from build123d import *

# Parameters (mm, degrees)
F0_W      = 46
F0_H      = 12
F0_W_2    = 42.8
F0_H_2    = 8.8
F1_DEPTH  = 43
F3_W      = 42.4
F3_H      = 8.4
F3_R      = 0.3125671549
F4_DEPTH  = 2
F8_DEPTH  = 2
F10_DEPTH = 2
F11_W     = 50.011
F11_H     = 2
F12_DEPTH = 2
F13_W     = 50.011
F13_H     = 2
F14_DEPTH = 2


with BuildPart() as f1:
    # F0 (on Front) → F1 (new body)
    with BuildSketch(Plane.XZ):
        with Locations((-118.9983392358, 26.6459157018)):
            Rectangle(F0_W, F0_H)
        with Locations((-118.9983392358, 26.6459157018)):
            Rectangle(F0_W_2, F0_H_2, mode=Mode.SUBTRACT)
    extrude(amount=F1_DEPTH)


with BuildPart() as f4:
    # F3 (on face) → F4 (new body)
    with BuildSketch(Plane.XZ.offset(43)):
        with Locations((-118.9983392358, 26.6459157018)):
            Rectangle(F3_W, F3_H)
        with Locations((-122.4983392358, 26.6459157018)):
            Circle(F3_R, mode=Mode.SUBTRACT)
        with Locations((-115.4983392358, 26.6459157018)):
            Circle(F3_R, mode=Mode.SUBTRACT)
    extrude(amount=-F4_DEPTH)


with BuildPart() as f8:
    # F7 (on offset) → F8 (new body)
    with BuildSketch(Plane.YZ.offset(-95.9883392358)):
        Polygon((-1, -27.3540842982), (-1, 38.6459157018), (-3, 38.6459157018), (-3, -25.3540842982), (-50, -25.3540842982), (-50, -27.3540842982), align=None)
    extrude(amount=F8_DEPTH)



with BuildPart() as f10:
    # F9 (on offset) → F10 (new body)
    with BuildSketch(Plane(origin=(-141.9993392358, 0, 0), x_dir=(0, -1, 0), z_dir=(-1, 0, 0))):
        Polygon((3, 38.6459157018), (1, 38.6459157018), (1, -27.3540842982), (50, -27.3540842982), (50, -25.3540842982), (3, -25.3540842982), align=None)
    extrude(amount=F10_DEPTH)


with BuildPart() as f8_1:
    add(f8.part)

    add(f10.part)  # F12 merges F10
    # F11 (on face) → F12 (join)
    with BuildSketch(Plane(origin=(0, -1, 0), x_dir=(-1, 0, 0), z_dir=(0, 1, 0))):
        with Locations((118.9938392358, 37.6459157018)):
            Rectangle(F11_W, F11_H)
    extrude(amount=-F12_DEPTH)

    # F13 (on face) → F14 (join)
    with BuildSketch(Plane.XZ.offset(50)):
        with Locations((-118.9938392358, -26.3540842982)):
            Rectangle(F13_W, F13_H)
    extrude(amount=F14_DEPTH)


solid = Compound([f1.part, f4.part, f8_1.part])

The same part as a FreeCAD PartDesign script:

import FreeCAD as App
import Part
import Sketcher

doc = App.newDocument("Part")
body = doc.addObject("PartDesign::Body", "Body")

sketch1 = body.newObject("Sketcher::SketchObject", "Sketch")
sketch1.AttachmentSupport = (doc.getObject("XZ_Plane"), [""])
sketch1.MapMode = "FlatFace"
sketch1.addGeometry(Part.LineSegment(App.Vector(-142, 33, 0), App.Vector(-142, 21, 0)), False)
sketch1.addGeometry(Part.LineSegment(App.Vector(-142, 21, 0), App.Vector(-96, 21, 0)), False)
sketch1.addGeometry(Part.LineSegment(App.Vector(-96, 21, 0), App.Vector(-96, 33, 0)), False)
sketch1.addGeometry(Part.LineSegment(App.Vector(-96, 33, 0), App.Vector(-142, 33, 0)), False)
sketch1.addGeometry(Part.LineSegment(App.Vector(-98, 22, 0), App.Vector(-140, 22, 0)), False)
sketch1.addGeometry(Part.LineSegment(App.Vector(-140, 22, 0), App.Vector(-140, 31, 0)), False)
sketch1.addGeometry(Part.LineSegment(App.Vector(-140, 31, 0), App.Vector(-98, 31, 0)), False)
sketch1.addGeometry(Part.LineSegment(App.Vector(-98, 31, 0), App.Vector(-98, 22, 0)), False)
sketch1.addConstraint(Sketcher.Constraint("Coincident", 0, 2, 1, 1))
sketch1.addConstraint(Sketcher.Constraint("Coincident", 1, 2, 2, 1))
sketch1.addConstraint(Sketcher.Constraint("Coincident", 2, 2, 3, 1))
sketch1.addConstraint(Sketcher.Constraint("Coincident", 3, 2, 0, 1))
sketch1.addConstraint(Sketcher.Constraint("Coincident", 4, 2, 5, 1))
sketch1.addConstraint(Sketcher.Constraint("Coincident", 5, 2, 6, 1))
sketch1.addConstraint(Sketcher.Constraint("Coincident", 6, 2, 7, 1))
sketch1.addConstraint(Sketcher.Constraint("Coincident", 7, 2, 4, 1))
sketch1.addConstraint(Sketcher.Constraint("Vertical", 0))
sketch1.addConstraint(Sketcher.Constraint("Horizontal", 1))
sketch1.addConstraint(Sketcher.Constraint("Vertical", 2))
sketch1.addConstraint(Sketcher.Constraint("Horizontal", 3))
sketch1.addConstraint(Sketcher.Constraint("Horizontal", 4))
sketch1.addConstraint(Sketcher.Constraint("Vertical", 5))
sketch1.addConstraint(Sketcher.Constraint("Horizontal", 6))
sketch1.addConstraint(Sketcher.Constraint("Vertical", 7))
sketch1.addConstraint(Sketcher.Constraint("DistanceX", 1, 1, 1, 2, 46.0))
sketch1.addConstraint(Sketcher.Constraint("DistanceY", 0, 2, 0, 1, 12.0))
sketch1.addConstraint(Sketcher.Constraint("DistanceX", 4, 2, 4, 1, 42.8))
sketch1.addConstraint(Sketcher.Constraint("DistanceY", 5, 1, 5, 2, 8.8))
sketch1.addConstraint(Sketcher.Constraint("DistanceX", 0, 2, 4, 2, 1.6))
sketch1.addConstraint(Sketcher.Constraint("DistanceY", 0, 2, 4, 2, 1.6))
sketch1.addConstraint(Sketcher.Constraint("DistanceX", 0, 2, -1, 1, 141.998339))
sketch1.addConstraint(Sketcher.Constraint("DistanceY", -1, 1, 0, 2, 20.645916))
pad1 = body.newObject("PartDesign::Pad", "Pad")
pad1.Profile = sketch1
pad1.Length = 43
body2 = doc.addObject("PartDesign::Body", "Body001")

sketch2 = body2.newObject("Sketcher::SketchObject", "Sketch001")
sketch2.AttachmentSupport = (doc.getObject("XZ_Plane001"), [""])
sketch2.MapMode = "FlatFace"
sketch2.AttachmentOffset = App.Placement(App.Vector(0, 0, 43), App.Rotation())
sketch2.addGeometry(Part.LineSegment(App.Vector(-140.2, 30.85, 0), App.Vector(-140.2, 22.45, 0)), False)
sketch2.addGeometry(Part.LineSegment(App.Vector(-140.2, 22.45, 0), App.Vector(-97.8, 22.45, 0)), False)
sketch2.addGeometry(Part.LineSegment(App.Vector(-97.8, 22.45, 0), App.Vector(-97.8, 30.85, 0)), False)
sketch2.addGeometry(Part.LineSegment(App.Vector(-97.8, 30.85, 0), App.Vector(-140.2, 30.85, 0)), False)
sketch2.addGeometry(Part.Circle(App.Vector(-122.5, 26.65, 0), App.Vector(0, 0, 1), 0.31), False)
sketch2.addGeometry(Part.Circle(App.Vector(-115.5, 26.65, 0), App.Vector(0, 0, 1), 0.31), False)
sketch2.addConstraint(Sketcher.Constraint("Coincident", 0, 2, 1, 1))
sketch2.addConstraint(Sketcher.Constraint("Coincident", 1, 2, 2, 1))
sketch2.addConstraint(Sketcher.Constraint("Coincident", 2, 2, 3, 1))
sketch2.addConstraint(Sketcher.Constraint("Coincident", 3, 2, 0, 1))
sketch2.addConstraint(Sketcher.Constraint("Vertical", 0))
sketch2.addConstraint(Sketcher.Constraint("Horizontal", 1))
sketch2.addConstraint(Sketcher.Constraint("Vertical", 2))
sketch2.addConstraint(Sketcher.Constraint("Horizontal", 3))
sketch2.addConstraint(Sketcher.Constraint("Equal", 4, 5))
sketch2.addConstraint(Sketcher.Constraint("Horizontal", 4, 3, 5, 3))
sketch2.addConstraint(Sketcher.Constraint("DistanceX", 1, 1, 1, 2, 42.4))
sketch2.addConstraint(Sketcher.Constraint("DistanceY", 0, 2, 0, 1, 8.4))
sketch2.addConstraint(Sketcher.Constraint("DistanceX", 4, 3, 5, 3, 7.0))
sketch2.addConstraint(Sketcher.Constraint("DistanceX", 0, 2, 4, 3, 17.7))
sketch2.addConstraint(Sketcher.Constraint("DistanceY", 0, 2, 4, 3, 4.2))
sketch2.addConstraint(Sketcher.Constraint("Diameter", 4, 0.625134))
sketch2.addConstraint(Sketcher.Constraint("DistanceX", 4, 3, -1, 1, 122.498339))
sketch2.addConstraint(Sketcher.Constraint("DistanceY", -1, 1, 4, 3, 26.645916))
pad2 = body2.newObject("PartDesign::Pad", "Pad001")
pad2.Profile = sketch2
pad2.Length = 2
pad2.Reversed = True
body3 = doc.addObject("PartDesign::Body", "Body002")

sketch3 = body3.newObject("Sketcher::SketchObject", "Sketch002")
sketch3.AttachmentSupport = (doc.getObject("YZ_Plane002"), [""])
sketch3.MapMode = "FlatFace"
sketch3.AttachmentOffset = App.Placement(App.Vector(0, 0, -95.988339), App.Rotation())
sketch3.addGeometry(Part.LineSegment(App.Vector(-1, -27.4, 0), App.Vector(-1, 38.6, 0)), False)
sketch3.addGeometry(Part.LineSegment(App.Vector(-1, 38.6, 0), App.Vector(-3, 38.6, 0)), False)
sketch3.addGeometry(Part.LineSegment(App.Vector(-3, 38.6, 0), App.Vector(-3, -25.4, 0)), False)
sketch3.addGeometry(Part.LineSegment(App.Vector(-3, -25.4, 0), App.Vector(-50, -25.4, 0)), False)
sketch3.addGeometry(Part.LineSegment(App.Vector(-50, -25.4, 0), App.Vector(-50, -27.4, 0)), False)
sketch3.addGeometry(Part.LineSegment(App.Vector(-50, -27.4, 0), App.Vector(-1, -27.4, 0)), False)
sketch3.addConstraint(Sketcher.Constraint("Coincident", 0, 2, 1, 1))
sketch3.addConstraint(Sketcher.Constraint("Coincident", 1, 2, 2, 1))
sketch3.addConstraint(Sketcher.Constraint("Coincident", 2, 2, 3, 1))
sketch3.addConstraint(Sketcher.Constraint("Coincident", 3, 2, 4, 1))
sketch3.addConstraint(Sketcher.Constraint("Coincident", 4, 2, 5, 1))
sketch3.addConstraint(Sketcher.Constraint("Coincident", 5, 2, 0, 1))
sketch3.addConstraint(Sketcher.Constraint("Vertical", 0))
sketch3.addConstraint(Sketcher.Constraint("Horizontal", 1))
sketch3.addConstraint(Sketcher.Constraint("Vertical", 2))
sketch3.addConstraint(Sketcher.Constraint("Horizontal", 3))
sketch3.addConstraint(Sketcher.Constraint("Vertical", 4))
sketch3.addConstraint(Sketcher.Constraint("Horizontal", 5))
sketch3.addConstraint(Sketcher.Constraint("Equal", 1, 4))
sketch3.addConstraint(Sketcher.Constraint("DistanceX", 1, 2, 1, 1, 2.0))
sketch3.addConstraint(Sketcher.Constraint("DistanceX", 3, 2, 3, 1, 47.0))
sketch3.addConstraint(Sketcher.Constraint("DistanceY", 0, 1, 0, 2, 66.0))
sketch3.addConstraint(Sketcher.Constraint("DistanceX", 0, 2, -1, 1, 1.0))
sketch3.addConstraint(Sketcher.Constraint("DistanceY", -1, 1, 0, 2, 38.645916))
pad3 = body3.newObject("PartDesign::Pad", "Pad002")
pad3.Profile = sketch3
pad3.Length = 2
body4 = doc.addObject("PartDesign::Body", "Body003")

sketch4 = body4.newObject("Sketcher::SketchObject", "Sketch003")
sketch4.AttachmentSupport = (doc.getObject("YZ_Plane003"), [""])
sketch4.MapMode = "FlatFace"
sketch4.AttachmentOffset = App.Placement(App.Vector(0, 0, -141.999339), App.Rotation())
sketch4.addGeometry(Part.LineSegment(App.Vector(-3, 38.6, 0), App.Vector(-1, 38.6, 0)), False)
sketch4.addGeometry(Part.LineSegment(App.Vector(-1, 38.6, 0), App.Vector(-1, -27.4, 0)), False)
sketch4.addGeometry(Part.LineSegment(App.Vector(-1, -27.4, 0), App.Vector(-50, -27.4, 0)), False)
sketch4.addGeometry(Part.LineSegment(App.Vector(-50, -27.4, 0), App.Vector(-50, -25.4, 0)), False)
sketch4.addGeometry(Part.LineSegment(App.Vector(-50, -25.4, 0), App.Vector(-3, -25.4, 0)), False)
sketch4.addGeometry(Part.LineSegment(App.Vector(-3, -25.4, 0), App.Vector(-3, 38.6, 0)), False)
sketch4.addConstraint(Sketcher.Constraint("Coincident", 0, 2, 1, 1))
sketch4.addConstraint(Sketcher.Constraint("Coincident", 1, 2, 2, 1))
sketch4.addConstraint(Sketcher.Constraint("Coincident", 2, 2, 3, 1))
sketch4.addConstraint(Sketcher.Constraint("Coincident", 3, 2, 4, 1))
sketch4.addConstraint(Sketcher.Constraint("Coincident", 4, 2, 5, 1))
sketch4.addConstraint(Sketcher.Constraint("Coincident", 5, 2, 0, 1))
sketch4.addConstraint(Sketcher.Constraint("Horizontal", 0))
sketch4.addConstraint(Sketcher.Constraint("Vertical", 1))
sketch4.addConstraint(Sketcher.Constraint("Horizontal", 2))
sketch4.addConstraint(Sketcher.Constraint("Vertical", 3))
sketch4.addConstraint(Sketcher.Constraint("Horizontal", 4))
sketch4.addConstraint(Sketcher.Constraint("Vertical", 5))
sketch4.addConstraint(Sketcher.Constraint("Equal", 0, 3))
sketch4.addConstraint(Sketcher.Constraint("DistanceX", 0, 1, 0, 2, 2.0))
sketch4.addConstraint(Sketcher.Constraint("DistanceX", 2, 2, 2, 1, 49.0))
sketch4.addConstraint(Sketcher.Constraint("DistanceY", 1, 2, 1, 1, 66.0))
sketch4.addConstraint(Sketcher.Constraint("DistanceX", 0, 2, -1, 1, 1.0))
sketch4.addConstraint(Sketcher.Constraint("DistanceY", -1, 1, 0, 2, 38.645916))
pad4 = body4.newObject("PartDesign::Pad", "Pad003")
pad4.Profile = sketch4
pad4.Length = 2
pad4.Reversed = True
body3.AllowCompound = True
doc.recompute()

boolean = body3.newObject("PartDesign::Boolean", "Boolean")
boolean.Type = "Fuse"
boolean.addObjects([body4])

sketch5 = body3.newObject("Sketcher::SketchObject", "Sketch004")
sketch5.AttachmentSupport = (doc.getObject("XZ_Plane002"), [""])
sketch5.MapMode = "FlatFace"
sketch5.AttachmentOffset = App.Placement(App.Vector(0, 0, 1), App.Rotation())
sketch5.addGeometry(Part.LineSegment(App.Vector(-94, 38.6, 0), App.Vector(-94, 36.6, 0)), False)
sketch5.addGeometry(Part.LineSegment(App.Vector(-94, 36.6, 0), App.Vector(-144, 36.6, 0)), False)
sketch5.addGeometry(Part.LineSegment(App.Vector(-144, 36.6, 0), App.Vector(-144, 38.6, 0)), False)
sketch5.addGeometry(Part.LineSegment(App.Vector(-144, 38.6, 0), App.Vector(-94, 38.6, 0)), False)
sketch5.addConstraint(Sketcher.Constraint("Coincident", 0, 2, 1, 1))
sketch5.addConstraint(Sketcher.Constraint("Coincident", 1, 2, 2, 1))
sketch5.addConstraint(Sketcher.Constraint("Coincident", 2, 2, 3, 1))
sketch5.addConstraint(Sketcher.Constraint("Coincident", 3, 2, 0, 1))
sketch5.addConstraint(Sketcher.Constraint("Vertical", 0))
sketch5.addConstraint(Sketcher.Constraint("Horizontal", 1))
sketch5.addConstraint(Sketcher.Constraint("Vertical", 2))
sketch5.addConstraint(Sketcher.Constraint("Horizontal", 3))
sketch5.addConstraint(Sketcher.Constraint("DistanceY", 0, 2, 0, 1, 2.0))
sketch5.addConstraint(Sketcher.Constraint("DistanceX", 1, 2, 1, 1, 50.011))
sketch5.addConstraint(Sketcher.Constraint("DistanceX", 0, 2, -1, 1, 93.988339))
sketch5.addConstraint(Sketcher.Constraint("DistanceY", -1, 1, 0, 2, 36.645916))
pad5 = body3.newObject("PartDesign::Pad", "Pad004")
pad5.Profile = sketch5
pad5.Length = 2

sketch6 = body3.newObject("Sketcher::SketchObject", "Sketch005")
sketch6.AttachmentSupport = (doc.getObject("XZ_Plane002"), [""])
sketch6.MapMode = "FlatFace"
sketch6.AttachmentOffset = App.Placement(App.Vector(0, 0, 50), App.Rotation())
sketch6.addGeometry(Part.LineSegment(App.Vector(-144, -25.4, 0), App.Vector(-144, -27.4, 0)), False)
sketch6.addGeometry(Part.LineSegment(App.Vector(-144, -27.4, 0), App.Vector(-94, -27.4, 0)), False)
sketch6.addGeometry(Part.LineSegment(App.Vector(-94, -27.4, 0), App.Vector(-94, -25.4, 0)), False)
sketch6.addGeometry(Part.LineSegment(App.Vector(-94, -25.4, 0), App.Vector(-144, -25.4, 0)), False)
sketch6.addConstraint(Sketcher.Constraint("Coincident", 0, 2, 1, 1))
sketch6.addConstraint(Sketcher.Constraint("Coincident", 1, 2, 2, 1))
sketch6.addConstraint(Sketcher.Constraint("Coincident", 2, 2, 3, 1))
sketch6.addConstraint(Sketcher.Constraint("Coincident", 3, 2, 0, 1))
sketch6.addConstraint(Sketcher.Constraint("Vertical", 0))
sketch6.addConstraint(Sketcher.Constraint("Horizontal", 1))
sketch6.addConstraint(Sketcher.Constraint("Vertical", 2))
sketch6.addConstraint(Sketcher.Constraint("Horizontal", 3))
sketch6.addConstraint(Sketcher.Constraint("DistanceY", 0, 2, 0, 1, 2.0))
sketch6.addConstraint(Sketcher.Constraint("DistanceX", 1, 1, 1, 2, 50.011))
sketch6.addConstraint(Sketcher.Constraint("DistanceX", 0, 2, -1, 1, 143.999339))
sketch6.addConstraint(Sketcher.Constraint("DistanceY", 0, 2, -1, 1, 27.354084))
pad6 = body3.newObject("PartDesign::Pad", "Pad005")
pad6.Profile = sketch6
pad6.Length = 2

doc.recompute()
